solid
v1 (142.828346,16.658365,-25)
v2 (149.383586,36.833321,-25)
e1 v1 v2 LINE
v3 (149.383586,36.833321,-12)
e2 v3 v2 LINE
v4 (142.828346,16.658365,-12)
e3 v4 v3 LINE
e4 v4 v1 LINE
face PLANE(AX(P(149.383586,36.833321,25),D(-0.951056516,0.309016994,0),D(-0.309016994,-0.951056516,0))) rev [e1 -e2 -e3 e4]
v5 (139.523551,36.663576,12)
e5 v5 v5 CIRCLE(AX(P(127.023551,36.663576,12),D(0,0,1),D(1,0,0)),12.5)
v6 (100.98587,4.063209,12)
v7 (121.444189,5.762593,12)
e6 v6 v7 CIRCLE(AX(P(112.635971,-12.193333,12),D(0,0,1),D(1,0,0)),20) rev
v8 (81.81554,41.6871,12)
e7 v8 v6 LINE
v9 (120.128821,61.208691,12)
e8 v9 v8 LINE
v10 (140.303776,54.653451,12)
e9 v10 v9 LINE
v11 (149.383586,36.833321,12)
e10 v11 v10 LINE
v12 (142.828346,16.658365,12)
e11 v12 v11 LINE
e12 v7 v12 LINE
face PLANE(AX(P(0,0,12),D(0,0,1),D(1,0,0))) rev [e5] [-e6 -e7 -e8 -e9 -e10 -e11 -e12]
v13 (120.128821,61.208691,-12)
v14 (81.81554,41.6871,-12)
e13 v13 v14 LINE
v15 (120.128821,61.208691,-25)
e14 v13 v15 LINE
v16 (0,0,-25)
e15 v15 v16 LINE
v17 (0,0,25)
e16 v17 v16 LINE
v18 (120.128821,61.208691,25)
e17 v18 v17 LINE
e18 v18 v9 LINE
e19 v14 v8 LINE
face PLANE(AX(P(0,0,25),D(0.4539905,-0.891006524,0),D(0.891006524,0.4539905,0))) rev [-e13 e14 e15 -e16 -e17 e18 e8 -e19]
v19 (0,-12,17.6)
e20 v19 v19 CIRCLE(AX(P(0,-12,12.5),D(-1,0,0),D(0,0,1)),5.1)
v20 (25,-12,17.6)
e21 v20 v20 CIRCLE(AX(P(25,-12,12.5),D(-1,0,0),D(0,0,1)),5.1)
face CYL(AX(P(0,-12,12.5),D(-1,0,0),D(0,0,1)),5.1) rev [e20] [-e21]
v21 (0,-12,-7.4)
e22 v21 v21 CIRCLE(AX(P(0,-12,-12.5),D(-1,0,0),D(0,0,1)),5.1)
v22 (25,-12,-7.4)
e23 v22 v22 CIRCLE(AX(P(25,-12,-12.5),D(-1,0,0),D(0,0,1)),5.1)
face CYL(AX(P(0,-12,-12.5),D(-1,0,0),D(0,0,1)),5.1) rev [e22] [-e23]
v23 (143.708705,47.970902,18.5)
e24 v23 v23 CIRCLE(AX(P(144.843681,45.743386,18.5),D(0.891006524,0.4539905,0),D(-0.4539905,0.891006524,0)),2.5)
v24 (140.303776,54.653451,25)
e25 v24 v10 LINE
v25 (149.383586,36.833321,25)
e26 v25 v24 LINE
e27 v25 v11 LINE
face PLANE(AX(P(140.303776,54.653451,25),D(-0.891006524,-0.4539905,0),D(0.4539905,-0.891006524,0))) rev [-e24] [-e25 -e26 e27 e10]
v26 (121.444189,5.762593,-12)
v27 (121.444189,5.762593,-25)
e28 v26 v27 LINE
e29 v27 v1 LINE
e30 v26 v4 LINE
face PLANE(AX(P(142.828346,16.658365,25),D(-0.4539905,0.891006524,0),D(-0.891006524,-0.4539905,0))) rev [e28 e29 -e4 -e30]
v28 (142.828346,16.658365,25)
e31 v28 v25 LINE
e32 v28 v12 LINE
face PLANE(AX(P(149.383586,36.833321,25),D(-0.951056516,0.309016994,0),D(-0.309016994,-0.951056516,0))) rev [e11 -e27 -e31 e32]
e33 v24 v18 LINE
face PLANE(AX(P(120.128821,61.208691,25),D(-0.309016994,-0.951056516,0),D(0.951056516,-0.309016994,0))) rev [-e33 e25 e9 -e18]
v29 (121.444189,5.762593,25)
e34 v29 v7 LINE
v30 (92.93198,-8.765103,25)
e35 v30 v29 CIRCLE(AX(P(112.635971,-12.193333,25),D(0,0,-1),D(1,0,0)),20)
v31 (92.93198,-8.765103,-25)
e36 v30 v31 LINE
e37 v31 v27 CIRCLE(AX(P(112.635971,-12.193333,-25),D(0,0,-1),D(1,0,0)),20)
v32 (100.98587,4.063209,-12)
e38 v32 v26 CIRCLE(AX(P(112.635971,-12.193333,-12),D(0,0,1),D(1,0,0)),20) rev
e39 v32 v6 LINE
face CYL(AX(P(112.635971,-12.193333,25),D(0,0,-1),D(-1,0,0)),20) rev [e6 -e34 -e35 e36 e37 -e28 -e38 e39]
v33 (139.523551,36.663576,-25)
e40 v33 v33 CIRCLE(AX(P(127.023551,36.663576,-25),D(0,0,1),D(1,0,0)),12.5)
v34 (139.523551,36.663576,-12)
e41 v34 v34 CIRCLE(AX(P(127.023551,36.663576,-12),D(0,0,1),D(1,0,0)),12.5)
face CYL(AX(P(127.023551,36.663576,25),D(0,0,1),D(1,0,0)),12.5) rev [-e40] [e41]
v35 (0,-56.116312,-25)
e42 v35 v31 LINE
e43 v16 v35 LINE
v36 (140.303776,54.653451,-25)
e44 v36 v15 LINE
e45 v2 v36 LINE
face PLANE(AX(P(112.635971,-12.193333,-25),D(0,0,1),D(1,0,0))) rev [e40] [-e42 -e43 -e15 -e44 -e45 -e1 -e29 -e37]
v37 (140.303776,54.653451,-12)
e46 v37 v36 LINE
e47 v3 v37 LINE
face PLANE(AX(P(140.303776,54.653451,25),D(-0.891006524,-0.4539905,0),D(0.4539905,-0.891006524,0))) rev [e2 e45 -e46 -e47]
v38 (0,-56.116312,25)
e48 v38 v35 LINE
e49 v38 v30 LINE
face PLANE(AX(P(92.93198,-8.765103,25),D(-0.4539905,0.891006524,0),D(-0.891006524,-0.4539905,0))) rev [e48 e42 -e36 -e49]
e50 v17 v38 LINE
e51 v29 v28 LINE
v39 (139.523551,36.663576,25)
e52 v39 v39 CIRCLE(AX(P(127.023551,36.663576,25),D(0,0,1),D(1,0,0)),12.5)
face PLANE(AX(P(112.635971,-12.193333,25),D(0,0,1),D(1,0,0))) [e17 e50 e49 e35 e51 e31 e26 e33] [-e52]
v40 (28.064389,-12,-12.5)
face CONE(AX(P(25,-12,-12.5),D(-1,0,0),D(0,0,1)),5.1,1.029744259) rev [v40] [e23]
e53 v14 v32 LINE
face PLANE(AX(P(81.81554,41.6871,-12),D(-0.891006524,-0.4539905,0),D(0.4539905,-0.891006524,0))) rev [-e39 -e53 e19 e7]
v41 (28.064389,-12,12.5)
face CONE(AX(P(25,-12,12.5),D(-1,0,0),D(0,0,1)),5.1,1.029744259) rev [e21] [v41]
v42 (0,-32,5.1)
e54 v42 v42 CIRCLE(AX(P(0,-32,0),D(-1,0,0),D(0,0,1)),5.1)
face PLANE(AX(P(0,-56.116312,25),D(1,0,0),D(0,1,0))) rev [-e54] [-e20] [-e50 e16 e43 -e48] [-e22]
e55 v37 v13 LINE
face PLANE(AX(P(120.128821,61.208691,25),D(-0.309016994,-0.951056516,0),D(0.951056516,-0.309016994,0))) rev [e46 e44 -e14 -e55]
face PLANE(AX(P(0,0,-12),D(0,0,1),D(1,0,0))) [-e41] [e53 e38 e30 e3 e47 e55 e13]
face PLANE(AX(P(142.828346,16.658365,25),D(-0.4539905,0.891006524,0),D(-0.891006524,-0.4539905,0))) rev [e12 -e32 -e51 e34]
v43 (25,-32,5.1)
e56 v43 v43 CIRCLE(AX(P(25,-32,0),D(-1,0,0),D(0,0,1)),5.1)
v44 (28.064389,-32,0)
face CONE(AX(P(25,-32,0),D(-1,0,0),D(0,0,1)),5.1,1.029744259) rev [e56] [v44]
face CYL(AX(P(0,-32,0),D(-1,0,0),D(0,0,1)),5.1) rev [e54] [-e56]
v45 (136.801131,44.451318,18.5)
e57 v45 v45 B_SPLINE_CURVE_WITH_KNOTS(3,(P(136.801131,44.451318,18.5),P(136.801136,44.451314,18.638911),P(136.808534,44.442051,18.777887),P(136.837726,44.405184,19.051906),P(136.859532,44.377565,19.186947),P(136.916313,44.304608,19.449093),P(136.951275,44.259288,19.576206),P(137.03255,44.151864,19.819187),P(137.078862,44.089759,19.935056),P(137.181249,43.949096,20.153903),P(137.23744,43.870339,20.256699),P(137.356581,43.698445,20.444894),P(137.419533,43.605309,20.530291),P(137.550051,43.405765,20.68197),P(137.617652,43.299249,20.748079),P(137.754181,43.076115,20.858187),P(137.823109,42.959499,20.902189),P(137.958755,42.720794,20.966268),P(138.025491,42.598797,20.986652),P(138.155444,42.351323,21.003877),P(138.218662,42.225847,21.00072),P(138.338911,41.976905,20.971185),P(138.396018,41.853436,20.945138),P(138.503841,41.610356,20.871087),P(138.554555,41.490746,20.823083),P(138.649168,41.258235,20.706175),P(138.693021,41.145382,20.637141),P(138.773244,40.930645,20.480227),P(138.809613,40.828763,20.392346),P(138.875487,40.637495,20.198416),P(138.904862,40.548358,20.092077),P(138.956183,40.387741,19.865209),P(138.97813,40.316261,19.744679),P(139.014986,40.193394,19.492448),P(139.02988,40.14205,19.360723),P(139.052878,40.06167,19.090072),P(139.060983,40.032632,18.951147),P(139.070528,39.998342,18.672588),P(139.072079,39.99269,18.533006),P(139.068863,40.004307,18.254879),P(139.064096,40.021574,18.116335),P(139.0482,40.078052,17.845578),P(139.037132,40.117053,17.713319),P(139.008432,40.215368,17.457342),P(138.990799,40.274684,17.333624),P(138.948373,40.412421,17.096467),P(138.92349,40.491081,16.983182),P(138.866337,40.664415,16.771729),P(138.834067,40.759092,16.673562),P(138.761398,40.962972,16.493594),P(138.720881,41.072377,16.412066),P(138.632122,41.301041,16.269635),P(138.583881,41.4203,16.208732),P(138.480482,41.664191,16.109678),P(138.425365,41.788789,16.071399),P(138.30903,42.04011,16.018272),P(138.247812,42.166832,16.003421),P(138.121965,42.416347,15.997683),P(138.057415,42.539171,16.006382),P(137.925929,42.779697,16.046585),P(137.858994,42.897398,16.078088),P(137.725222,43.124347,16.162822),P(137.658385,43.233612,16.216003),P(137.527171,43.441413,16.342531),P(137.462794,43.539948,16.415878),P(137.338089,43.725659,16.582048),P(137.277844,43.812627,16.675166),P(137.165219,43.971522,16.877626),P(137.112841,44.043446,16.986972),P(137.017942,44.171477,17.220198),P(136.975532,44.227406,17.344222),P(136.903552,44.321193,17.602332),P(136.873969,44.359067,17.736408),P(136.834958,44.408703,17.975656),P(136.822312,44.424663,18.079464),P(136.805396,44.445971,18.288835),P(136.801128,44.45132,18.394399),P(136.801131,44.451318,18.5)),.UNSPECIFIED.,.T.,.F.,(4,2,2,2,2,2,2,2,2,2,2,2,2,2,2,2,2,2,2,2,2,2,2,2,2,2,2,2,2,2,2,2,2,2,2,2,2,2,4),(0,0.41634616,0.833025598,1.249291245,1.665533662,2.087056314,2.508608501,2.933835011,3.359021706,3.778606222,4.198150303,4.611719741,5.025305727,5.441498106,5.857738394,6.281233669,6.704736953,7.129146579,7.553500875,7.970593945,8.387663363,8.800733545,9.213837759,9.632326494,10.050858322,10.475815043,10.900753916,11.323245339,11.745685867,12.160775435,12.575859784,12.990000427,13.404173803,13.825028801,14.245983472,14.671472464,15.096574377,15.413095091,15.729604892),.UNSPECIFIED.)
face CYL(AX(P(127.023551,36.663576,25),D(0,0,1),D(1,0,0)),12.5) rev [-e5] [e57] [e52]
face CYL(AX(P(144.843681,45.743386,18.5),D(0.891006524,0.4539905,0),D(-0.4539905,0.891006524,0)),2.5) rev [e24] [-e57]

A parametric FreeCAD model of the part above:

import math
import FreeCAD as App
import Part
import Sketcher
from FreeCAD import Vector
Q = App.Units.Quantity


def add_polygon(sketch, points):
    """Adds a closed chain of lines whose ends are joined by coincident constraints."""
    first, n = sketch.GeometryCount, len(points)
    for a, b in zip(points, points[1:] + points[:1]):
        sketch.addGeometry(Part.LineSegment(App.Vector(*a, 0), App.Vector(*b, 0)), False)
    for i in range(n):
        sketch.addConstraint(Sketcher.Constraint("Coincident", first + i, 2, first + (i + 1) % n, 1))

doc = App.newDocument("Part")
params = doc.addObject("Spreadsheet::Sheet", "Params")
for row, (alias, value) in enumerate([
    ("sketch1_radius", "20 mm"),
    ("sketch1_length", "24 mm"),
    ("sketch1_length2", "20 mm"),
    ("sketch1_length3", "104.3 mm"),
    ("pad1_length", "50 mm"),
    ("sketch2_length", "58 mm"),
    ("sketch2_length2", "50 mm"),
    ("pocket1_length", "24 mm"),
    ("sketch3_diameter", "25 mm"),
    ("hole_diameter", "25 mm"),
    ("sketch4_diameter", "5 mm"),
    ("hole2_diameter", "5 mm"),
    ("hole2_depth", "17 mm"),
    ("sketch5_diameter", "10.2 mm"),
    ("hole3_diameter", "10.2 mm"),
    ("hole3_depth", "25 mm"),
], start=1):
    params.set(f"A{row}", alias)
    params.set(f"B{row}", "=" + value)
    params.setAlias(f"B{row}", alias)

body = doc.addObject("PartDesign::Body", "Body")

# Sketch on XY plane
sketch1 = body.newObject("Sketcher::SketchObject", "Sketch")
sketch1.AttachmentSupport = (doc.getObject("XY_Plane"), [""])
sketch1.MapMode = "FlatFace"
sketch1.addGeometry([
    Part.LineSegment(Vector(120.128821, 61.208691, 0), Vector(0, 0, 0)),  # 0
    Part.LineSegment(Vector(0, 0, 0), Vector(0, -56.116312, 0)),  # 1
    Part.LineSegment(Vector(0, -56.116312, 0), Vector(92.93198, -8.765103, 0)),  # 2
    Part.ArcOfCircle(Part.Circle(Vector(112.635971, -12.193333, 0), Vector(0, 0, 1), 20), math.radians(63.869898), math.radians(170.130102)),  # 3
    Part.LineSegment(Vector(121.444189, 5.762593, 0), Vector(142.828346, 16.658365, 0)),  # 4
    Part.LineSegment(Vector(142.828346, 16.658365, 0), Vector(149.383586, 36.833321, 0)),  # 5
    Part.LineSegment(Vector(149.383586, 36.833321, 0), Vector(140.303776, 54.653451, 0)),  # 6
    Part.LineSegment(Vector(140.303776, 54.653451, 0), Vector(120.128821, 61.208691, 0)),  # 7
], False)
sketch1.addConstraint([
    Sketcher.Constraint("Coincident", 0, 2, 1, 1),
    Sketcher.Constraint("Coincident", 1, 2, 2, 1),
    Sketcher.Constraint("Coincident", 2, 2, 3, 2),
    Sketcher.Constraint("Coincident", 3, 1, 4, 1),
    Sketcher.Constraint("Coincident", 4, 2, 5, 1),
    Sketcher.Constraint("Coincident", 5, 2, 6, 1),
    Sketcher.Constraint("Coincident", 6, 2, 7, 1),
    Sketcher.Constraint("Coincident", 7, 2, 0, 1),
    Sketcher.Constraint("Vertical", 1),
    Sketcher.Constraint("Coincident", 0, 2, -1, 1),
    Sketcher.Constraint("Parallel", 0, 2),
    Sketcher.Constraint("Parallel", 2, 4),
    Sketcher.Constraint("Perpendicular", 4, 6),
    Sketcher.Constraint("Perpendicular", 5, 7),
    Sketcher.Constraint("Equal", 5, 7),
    Sketcher.Constraint("Radius", 3, Q("20 mm")),
    Sketcher.Constraint("Angle", 0, Q("-153 deg")),
    Sketcher.Constraint("Angle", 5, Q("72 deg")),
    Sketcher.Constraint("Distance", 4, Q("24 mm")),
    Sketcher.Constraint("Distance", 6, Q("20 mm")),
    Sketcher.Constraint("Distance", 2, Q("104.3 mm")),
    Sketcher.Constraint("DistanceY", 1, 2, 1, 1, Q("56.116312 mm")),
    Sketcher.Constraint("DistanceY", 3, 3, 4, 2, Q("28.851698 mm")),
    Sketcher.Constraint("DistanceY", 3, 1, 7, 2, Q("55.446098 mm")),
])
sketch1.setExpression("Constraints[15]", "Params.sketch1_radius")
sketch1.setExpression("Constraints[18]", "Params.sketch1_length")
sketch1.setExpression("Constraints[19]", "Params.sketch1_length2")
sketch1.setExpression("Constraints[20]", "Params.sketch1_length3")
pad1 = body.newObject("PartDesign::Pad", "Pad")
pad1.Profile = sketch1
pad1.setExpression("Length", "Params.pad1_length")
pad1.Midplane = True

# Sketch on XY plane
sketch2 = body.newObject("Sketcher::SketchObject", "Sketch001")
sketch2.AttachmentSupport = (doc.getObject("XY_Plane"), [""])
sketch2.MapMode = "FlatFace"
add_polygon(sketch2, [(133.493919, 68.018549), (81.81554, 41.6871), (104.515065, -2.863226), (156.193444, 23.468223)])  # lines 0-3
sketch2.addConstraint([
    Sketcher.Constraint("Perpendicular", 0, 1),
    Sketcher.Constraint("Perpendicular", 1, 2),
    Sketcher.Constraint("Perpendicular", 2, 3),
    Sketcher.Constraint("Angle", 0, Q("-153 deg")),
    Sketcher.Constraint("Distance", 0, Q("58 mm")),
    Sketcher.Constraint("Distance", 1, Q("50 mm")),
    Sketcher.Constraint("DistanceY", -1, 1, 0, 2, Q("41.6871 mm")),
    Sketcher.Constraint("DistanceX", -1, 1, 0, 2, Q("81.81554 mm")),
])
sketch2.setExpression("Constraints[8]", "Params.sketch2_length")
sketch2.setExpression("Constraints[9]", "Params.sketch2_length2")
pocket1 = body.newObject("PartDesign::Pocket", "Pocket")
pocket1.Profile = sketch2
pocket1.setExpression("Length", "Params.pocket1_length")
pocket1.Midplane = True

# Sketch on XY plane
sketch3 = body.newObject("Sketcher::SketchObject", "Sketch002")
sketch3.AttachmentSupport = (doc.getObject("XY_Plane"), [""])
sketch3.MapMode = "FlatFace"
sketch3.AttachmentOffset = App.Placement(Vector(0, 0, 25), App.Rotation())
sketch3.addGeometry(Part.Circle(Vector(127.023551, 36.663576, 0), Vector(0, 0, 1), 12.5), False)
sketch3.addConstraint([
    Sketcher.Constraint("Diameter", 0, Q("25 mm")),
    Sketcher.Constraint("DistanceX", -1, 1, 0, 3, Q("127.023551 mm")),
    Sketcher.Constraint("DistanceY", -1, 1, 0, 3, Q("36.663576 mm")),
])
sketch3.setExpression("Constraints[0]", "Params.sketch3_diameter")
doc.recompute()
hole = body.newObject("PartDesign::Hole", "Hole")
hole.Profile = sketch3
hole.ThreadType = "None"
hole.setExpression("Diameter", "Params.hole_diameter")
hole.DepthType = "ThroughAll"

# Sketch on an angled plane
sketch4 = body.newObject("Sketcher::SketchObject", "Sketch003")
sketch4.Placement = App.Placement(Vector(133.493919, 68.018549, 0), App.Rotation(Vector(0, 0, -1), Vector(-0.4539905, 0.891006524, 0), Vector(0.891006524, 0.4539905, 0), "ZXY"))
sketch4.addGeometry(Part.Circle(Vector(-18.5, -25, 0), Vector(0, 0, 1), 2.5), False)
sketch4.addConstraint([
    Sketcher.Constraint("Diameter", 0, Q("5 mm")),
    Sketcher.Constraint("DistanceY", 0, 3, -1, 1, Q("25 mm")),
    Sketcher.Constraint("DistanceX", 0, 3, -1, 1, Q("18.5 mm")),
])
sketch4.setExpression("Constraints[0]", "Params.sketch4_diameter")
doc.recompute()
hole2 = body.newObject("PartDesign::Hole", "Hole001")
hole2.Profile = sketch4
hole2.ThreadType = "None"
hole2.setExpression("Diameter", "Params.hole2_diameter")
hole2.DepthType = "Dimension"
hole2.setExpression("Depth", "Params.hole2_depth")
hole2.DrillPoint = "Angled"
hole2.DrillPointAngle = 118

# Sketch on YZ plane
sketch5 = body.newObject("Sketcher::SketchObject", "Sketch004")
sketch5.AttachmentSupport = (doc.getObject("YZ_Plane"), [""])
sketch5.MapMode = "FlatFace"
sketch5.addGeometry([
    Part.Circle(Vector(-12, -12.5, 0), Vector(0, 0, 1), 5.1),
    Part.Circle(Vector(-12, 12.5, 0), Vector(0, 0, 1), 5.1),
    Part.Circle(Vector(-32, 0, 0), Vector(0, 0, 1), 5.1),
], False)
sketch5.addConstraint([
    Sketcher.Constraint("Equal", 0, 1),
    Sketcher.Constraint("Equal", 1, 2),
    Sketcher.Constraint("Symmetric", 0, 3, 1, 3, -1),
    Sketcher.Constraint("PointOnObject", 2, 3, -1),
    Sketcher.Constraint("Diameter", 0, Q("10.2 mm")),
    Sketcher.Constraint("DistanceX", 0, 3, -1, 1, Q("12 mm")),
    Sketcher.Constraint("DistanceX", 2, 3, -1, 1, Q("32 mm")),
    Sketcher.Constraint("DistanceY", 0, 3, 1, 3, Q("25 mm")),
])
sketch5.setExpression("Constraints[4]", "Params.sketch5_diameter")
doc.recompute()
hole3 = body.newObject("PartDesign::Hole", "Hole002")
hole3.Profile = sketch5
hole3.ThreadType = "None"
hole3.setExpression("Diameter", "Params.hole3_diameter")
hole3.DepthType = "Dimension"
hole3.setExpression("Depth", "Params.hole3_depth")
hole3.DrillPoint = "Angled"
hole3.DrillPointAngle = 118
hole3.Reversed = True

doc.recompute()
